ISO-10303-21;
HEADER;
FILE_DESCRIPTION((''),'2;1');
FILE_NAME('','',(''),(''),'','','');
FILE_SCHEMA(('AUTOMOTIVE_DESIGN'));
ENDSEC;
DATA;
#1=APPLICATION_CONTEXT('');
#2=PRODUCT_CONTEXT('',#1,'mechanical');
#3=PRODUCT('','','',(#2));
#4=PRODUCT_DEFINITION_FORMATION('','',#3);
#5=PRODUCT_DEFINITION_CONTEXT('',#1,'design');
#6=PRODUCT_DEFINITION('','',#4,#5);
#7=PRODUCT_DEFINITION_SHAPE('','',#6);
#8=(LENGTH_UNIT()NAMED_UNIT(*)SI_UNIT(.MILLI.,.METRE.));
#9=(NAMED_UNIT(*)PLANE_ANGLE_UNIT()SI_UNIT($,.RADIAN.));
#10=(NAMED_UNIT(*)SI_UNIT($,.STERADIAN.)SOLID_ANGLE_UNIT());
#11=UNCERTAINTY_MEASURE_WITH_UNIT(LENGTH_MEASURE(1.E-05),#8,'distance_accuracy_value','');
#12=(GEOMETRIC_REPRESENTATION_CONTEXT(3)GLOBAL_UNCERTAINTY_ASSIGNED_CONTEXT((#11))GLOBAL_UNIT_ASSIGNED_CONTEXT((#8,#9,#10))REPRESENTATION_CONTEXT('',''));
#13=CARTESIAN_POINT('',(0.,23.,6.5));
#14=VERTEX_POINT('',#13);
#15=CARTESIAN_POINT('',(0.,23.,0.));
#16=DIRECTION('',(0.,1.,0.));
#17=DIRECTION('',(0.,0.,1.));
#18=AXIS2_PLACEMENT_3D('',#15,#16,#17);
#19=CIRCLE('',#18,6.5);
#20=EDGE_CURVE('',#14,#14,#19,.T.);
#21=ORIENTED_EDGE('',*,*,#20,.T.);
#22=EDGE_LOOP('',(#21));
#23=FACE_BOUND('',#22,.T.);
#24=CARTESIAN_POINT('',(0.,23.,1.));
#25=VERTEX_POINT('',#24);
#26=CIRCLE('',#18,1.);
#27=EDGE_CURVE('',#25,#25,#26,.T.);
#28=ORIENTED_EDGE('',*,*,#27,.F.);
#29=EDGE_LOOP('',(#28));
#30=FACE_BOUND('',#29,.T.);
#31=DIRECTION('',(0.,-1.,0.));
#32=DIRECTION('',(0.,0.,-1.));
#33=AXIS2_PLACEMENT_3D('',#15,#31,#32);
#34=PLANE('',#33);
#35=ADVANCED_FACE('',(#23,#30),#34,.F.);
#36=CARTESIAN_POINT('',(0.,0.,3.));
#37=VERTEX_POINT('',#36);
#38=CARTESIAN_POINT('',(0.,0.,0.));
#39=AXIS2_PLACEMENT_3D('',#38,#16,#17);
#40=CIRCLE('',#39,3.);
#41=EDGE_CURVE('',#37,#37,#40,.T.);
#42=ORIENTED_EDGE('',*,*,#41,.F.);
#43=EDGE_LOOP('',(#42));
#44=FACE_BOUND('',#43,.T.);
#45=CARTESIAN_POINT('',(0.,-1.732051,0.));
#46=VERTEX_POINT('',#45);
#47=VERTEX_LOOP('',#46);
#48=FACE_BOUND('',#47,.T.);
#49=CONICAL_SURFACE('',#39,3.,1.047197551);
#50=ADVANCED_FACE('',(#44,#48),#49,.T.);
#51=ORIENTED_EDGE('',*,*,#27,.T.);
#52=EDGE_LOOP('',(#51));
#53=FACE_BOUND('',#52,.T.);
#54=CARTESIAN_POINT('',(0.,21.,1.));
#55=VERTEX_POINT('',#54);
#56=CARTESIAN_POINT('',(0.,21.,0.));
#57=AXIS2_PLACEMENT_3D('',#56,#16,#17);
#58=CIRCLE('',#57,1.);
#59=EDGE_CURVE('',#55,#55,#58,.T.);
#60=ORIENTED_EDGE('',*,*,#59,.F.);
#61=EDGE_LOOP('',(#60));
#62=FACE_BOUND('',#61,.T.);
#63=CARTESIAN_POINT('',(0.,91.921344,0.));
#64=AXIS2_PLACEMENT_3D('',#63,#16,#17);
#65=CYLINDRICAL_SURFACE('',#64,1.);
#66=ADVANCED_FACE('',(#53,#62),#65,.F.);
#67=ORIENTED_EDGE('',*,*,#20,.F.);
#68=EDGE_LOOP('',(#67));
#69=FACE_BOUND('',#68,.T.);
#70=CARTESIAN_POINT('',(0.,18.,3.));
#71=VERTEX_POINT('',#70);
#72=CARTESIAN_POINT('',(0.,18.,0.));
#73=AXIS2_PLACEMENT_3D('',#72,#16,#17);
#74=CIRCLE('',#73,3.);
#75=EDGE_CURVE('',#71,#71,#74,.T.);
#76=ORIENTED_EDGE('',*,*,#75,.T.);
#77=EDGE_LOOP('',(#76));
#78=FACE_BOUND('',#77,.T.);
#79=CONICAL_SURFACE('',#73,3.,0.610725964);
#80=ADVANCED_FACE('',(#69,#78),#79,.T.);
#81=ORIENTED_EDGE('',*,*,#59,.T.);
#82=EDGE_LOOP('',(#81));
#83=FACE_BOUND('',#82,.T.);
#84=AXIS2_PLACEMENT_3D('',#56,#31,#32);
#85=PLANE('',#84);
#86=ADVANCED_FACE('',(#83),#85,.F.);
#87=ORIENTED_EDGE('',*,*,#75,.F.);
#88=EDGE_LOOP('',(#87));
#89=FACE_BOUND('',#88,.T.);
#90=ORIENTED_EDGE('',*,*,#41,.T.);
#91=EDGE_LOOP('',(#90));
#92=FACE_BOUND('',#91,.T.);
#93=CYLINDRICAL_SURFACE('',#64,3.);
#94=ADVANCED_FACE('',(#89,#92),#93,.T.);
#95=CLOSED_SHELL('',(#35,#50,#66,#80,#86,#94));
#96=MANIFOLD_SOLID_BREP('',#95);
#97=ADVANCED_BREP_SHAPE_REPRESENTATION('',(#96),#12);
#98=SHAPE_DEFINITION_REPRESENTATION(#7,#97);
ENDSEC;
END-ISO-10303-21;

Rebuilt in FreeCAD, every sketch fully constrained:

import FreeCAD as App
import Part
import Sketcher

V = App.Vector
Q = App.Units.Quantity


def add_polygon(sketch, points):
    """Adds a closed chain of lines whose ends are joined by coincident constraints."""
    first, n = sketch.GeometryCount, len(points)
    for a, b in zip(points, points[1:] + points[:1]):
        sketch.addGeometry(Part.LineSegment(App.Vector(*a, 0), App.Vector(*b, 0)), False)
    for i in range(n):
        sketch.addConstraint(Sketcher.Constraint("Coincident", first + i, 2, first + (i + 1) % n, 1))

doc = App.newDocument("Part")
params = doc.addObject("Spreadsheet::Sheet", "Params")
for row, (alias, value) in enumerate([
    ("sketch1_width", "1 mm"),
    ("sketch1_height", "2 mm"),
    ("sketch1_height2", "18 mm"),
    ("sketch1_width2", "5.5 mm"),
    ("revolution_angle", "360 deg"),
], start=1):
    params.set(f"A{row}", alias)
    params.set(f"B{row}", "=" + value)
    params.setAlias(f"B{row}", alias)

body = doc.addObject("PartDesign::Body", "Body")

# Sketch on XY plane
sketch1 = body.newObject("Sketcher::SketchObject", "Sketch")
sketch1.AttachmentSupport = (doc.getObject("XY_Plane"), [""])
sketch1.MapMode = "FlatFace"
add_polygon(sketch1, [(0, -1.7), (0, 21), (-1, 21), (-1, 23), (-6.5, 23), (-3, 18), (-3, 0)])  # lines 0-6
sketch1.addConstraint([
    Sketcher.Constraint("Vertical", 0),
    Sketcher.Constraint("Horizontal", 1),
    Sketcher.Constraint("Vertical", 2),
    Sketcher.Constraint("Horizontal", 3),
    Sketcher.Constraint("Vertical", 5),
    Sketcher.Constraint("PointOnObject", 0, 2, -2),
    Sketcher.Constraint("PointOnObject", 5, 2, -1),
    Sketcher.Constraint("DistanceX", 1, 2, 1, 1, 1.0),
    Sketcher.Constraint("DistanceY", 2, 1, 2, 2, 2.0),
    Sketcher.Constraint("DistanceY", 5, 2, 5, 1, 18.0),
    Sketcher.Constraint("Angle", 6, Q("-30 deg")),
    Sketcher.Constraint("DistanceX", 3, 2, 3, 1, 5.5),
    Sketcher.Constraint("DistanceY", -1, 1, 0, 2, 21.0),
    Sketcher.Constraint("DistanceX", 4, 2, -1, 1, 3.0),
])
sketch1.setExpression("Constraints[14]", "Params.sketch1_width")
sketch1.setExpression("Constraints[15]", "Params.sketch1_height")
sketch1.setExpression("Constraints[16]", "Params.sketch1_height2")
sketch1.setExpression("Constraints[18]", "Params.sketch1_width2")
revolution = body.newObject("PartDesign::Revolution", "Revolution")
revolution.Profile = sketch1
revolution.ReferenceAxis = (sketch1, ["V_Axis"])
revolution.setExpression("Angle", "Params.revolution_angle")

doc.recompute()
